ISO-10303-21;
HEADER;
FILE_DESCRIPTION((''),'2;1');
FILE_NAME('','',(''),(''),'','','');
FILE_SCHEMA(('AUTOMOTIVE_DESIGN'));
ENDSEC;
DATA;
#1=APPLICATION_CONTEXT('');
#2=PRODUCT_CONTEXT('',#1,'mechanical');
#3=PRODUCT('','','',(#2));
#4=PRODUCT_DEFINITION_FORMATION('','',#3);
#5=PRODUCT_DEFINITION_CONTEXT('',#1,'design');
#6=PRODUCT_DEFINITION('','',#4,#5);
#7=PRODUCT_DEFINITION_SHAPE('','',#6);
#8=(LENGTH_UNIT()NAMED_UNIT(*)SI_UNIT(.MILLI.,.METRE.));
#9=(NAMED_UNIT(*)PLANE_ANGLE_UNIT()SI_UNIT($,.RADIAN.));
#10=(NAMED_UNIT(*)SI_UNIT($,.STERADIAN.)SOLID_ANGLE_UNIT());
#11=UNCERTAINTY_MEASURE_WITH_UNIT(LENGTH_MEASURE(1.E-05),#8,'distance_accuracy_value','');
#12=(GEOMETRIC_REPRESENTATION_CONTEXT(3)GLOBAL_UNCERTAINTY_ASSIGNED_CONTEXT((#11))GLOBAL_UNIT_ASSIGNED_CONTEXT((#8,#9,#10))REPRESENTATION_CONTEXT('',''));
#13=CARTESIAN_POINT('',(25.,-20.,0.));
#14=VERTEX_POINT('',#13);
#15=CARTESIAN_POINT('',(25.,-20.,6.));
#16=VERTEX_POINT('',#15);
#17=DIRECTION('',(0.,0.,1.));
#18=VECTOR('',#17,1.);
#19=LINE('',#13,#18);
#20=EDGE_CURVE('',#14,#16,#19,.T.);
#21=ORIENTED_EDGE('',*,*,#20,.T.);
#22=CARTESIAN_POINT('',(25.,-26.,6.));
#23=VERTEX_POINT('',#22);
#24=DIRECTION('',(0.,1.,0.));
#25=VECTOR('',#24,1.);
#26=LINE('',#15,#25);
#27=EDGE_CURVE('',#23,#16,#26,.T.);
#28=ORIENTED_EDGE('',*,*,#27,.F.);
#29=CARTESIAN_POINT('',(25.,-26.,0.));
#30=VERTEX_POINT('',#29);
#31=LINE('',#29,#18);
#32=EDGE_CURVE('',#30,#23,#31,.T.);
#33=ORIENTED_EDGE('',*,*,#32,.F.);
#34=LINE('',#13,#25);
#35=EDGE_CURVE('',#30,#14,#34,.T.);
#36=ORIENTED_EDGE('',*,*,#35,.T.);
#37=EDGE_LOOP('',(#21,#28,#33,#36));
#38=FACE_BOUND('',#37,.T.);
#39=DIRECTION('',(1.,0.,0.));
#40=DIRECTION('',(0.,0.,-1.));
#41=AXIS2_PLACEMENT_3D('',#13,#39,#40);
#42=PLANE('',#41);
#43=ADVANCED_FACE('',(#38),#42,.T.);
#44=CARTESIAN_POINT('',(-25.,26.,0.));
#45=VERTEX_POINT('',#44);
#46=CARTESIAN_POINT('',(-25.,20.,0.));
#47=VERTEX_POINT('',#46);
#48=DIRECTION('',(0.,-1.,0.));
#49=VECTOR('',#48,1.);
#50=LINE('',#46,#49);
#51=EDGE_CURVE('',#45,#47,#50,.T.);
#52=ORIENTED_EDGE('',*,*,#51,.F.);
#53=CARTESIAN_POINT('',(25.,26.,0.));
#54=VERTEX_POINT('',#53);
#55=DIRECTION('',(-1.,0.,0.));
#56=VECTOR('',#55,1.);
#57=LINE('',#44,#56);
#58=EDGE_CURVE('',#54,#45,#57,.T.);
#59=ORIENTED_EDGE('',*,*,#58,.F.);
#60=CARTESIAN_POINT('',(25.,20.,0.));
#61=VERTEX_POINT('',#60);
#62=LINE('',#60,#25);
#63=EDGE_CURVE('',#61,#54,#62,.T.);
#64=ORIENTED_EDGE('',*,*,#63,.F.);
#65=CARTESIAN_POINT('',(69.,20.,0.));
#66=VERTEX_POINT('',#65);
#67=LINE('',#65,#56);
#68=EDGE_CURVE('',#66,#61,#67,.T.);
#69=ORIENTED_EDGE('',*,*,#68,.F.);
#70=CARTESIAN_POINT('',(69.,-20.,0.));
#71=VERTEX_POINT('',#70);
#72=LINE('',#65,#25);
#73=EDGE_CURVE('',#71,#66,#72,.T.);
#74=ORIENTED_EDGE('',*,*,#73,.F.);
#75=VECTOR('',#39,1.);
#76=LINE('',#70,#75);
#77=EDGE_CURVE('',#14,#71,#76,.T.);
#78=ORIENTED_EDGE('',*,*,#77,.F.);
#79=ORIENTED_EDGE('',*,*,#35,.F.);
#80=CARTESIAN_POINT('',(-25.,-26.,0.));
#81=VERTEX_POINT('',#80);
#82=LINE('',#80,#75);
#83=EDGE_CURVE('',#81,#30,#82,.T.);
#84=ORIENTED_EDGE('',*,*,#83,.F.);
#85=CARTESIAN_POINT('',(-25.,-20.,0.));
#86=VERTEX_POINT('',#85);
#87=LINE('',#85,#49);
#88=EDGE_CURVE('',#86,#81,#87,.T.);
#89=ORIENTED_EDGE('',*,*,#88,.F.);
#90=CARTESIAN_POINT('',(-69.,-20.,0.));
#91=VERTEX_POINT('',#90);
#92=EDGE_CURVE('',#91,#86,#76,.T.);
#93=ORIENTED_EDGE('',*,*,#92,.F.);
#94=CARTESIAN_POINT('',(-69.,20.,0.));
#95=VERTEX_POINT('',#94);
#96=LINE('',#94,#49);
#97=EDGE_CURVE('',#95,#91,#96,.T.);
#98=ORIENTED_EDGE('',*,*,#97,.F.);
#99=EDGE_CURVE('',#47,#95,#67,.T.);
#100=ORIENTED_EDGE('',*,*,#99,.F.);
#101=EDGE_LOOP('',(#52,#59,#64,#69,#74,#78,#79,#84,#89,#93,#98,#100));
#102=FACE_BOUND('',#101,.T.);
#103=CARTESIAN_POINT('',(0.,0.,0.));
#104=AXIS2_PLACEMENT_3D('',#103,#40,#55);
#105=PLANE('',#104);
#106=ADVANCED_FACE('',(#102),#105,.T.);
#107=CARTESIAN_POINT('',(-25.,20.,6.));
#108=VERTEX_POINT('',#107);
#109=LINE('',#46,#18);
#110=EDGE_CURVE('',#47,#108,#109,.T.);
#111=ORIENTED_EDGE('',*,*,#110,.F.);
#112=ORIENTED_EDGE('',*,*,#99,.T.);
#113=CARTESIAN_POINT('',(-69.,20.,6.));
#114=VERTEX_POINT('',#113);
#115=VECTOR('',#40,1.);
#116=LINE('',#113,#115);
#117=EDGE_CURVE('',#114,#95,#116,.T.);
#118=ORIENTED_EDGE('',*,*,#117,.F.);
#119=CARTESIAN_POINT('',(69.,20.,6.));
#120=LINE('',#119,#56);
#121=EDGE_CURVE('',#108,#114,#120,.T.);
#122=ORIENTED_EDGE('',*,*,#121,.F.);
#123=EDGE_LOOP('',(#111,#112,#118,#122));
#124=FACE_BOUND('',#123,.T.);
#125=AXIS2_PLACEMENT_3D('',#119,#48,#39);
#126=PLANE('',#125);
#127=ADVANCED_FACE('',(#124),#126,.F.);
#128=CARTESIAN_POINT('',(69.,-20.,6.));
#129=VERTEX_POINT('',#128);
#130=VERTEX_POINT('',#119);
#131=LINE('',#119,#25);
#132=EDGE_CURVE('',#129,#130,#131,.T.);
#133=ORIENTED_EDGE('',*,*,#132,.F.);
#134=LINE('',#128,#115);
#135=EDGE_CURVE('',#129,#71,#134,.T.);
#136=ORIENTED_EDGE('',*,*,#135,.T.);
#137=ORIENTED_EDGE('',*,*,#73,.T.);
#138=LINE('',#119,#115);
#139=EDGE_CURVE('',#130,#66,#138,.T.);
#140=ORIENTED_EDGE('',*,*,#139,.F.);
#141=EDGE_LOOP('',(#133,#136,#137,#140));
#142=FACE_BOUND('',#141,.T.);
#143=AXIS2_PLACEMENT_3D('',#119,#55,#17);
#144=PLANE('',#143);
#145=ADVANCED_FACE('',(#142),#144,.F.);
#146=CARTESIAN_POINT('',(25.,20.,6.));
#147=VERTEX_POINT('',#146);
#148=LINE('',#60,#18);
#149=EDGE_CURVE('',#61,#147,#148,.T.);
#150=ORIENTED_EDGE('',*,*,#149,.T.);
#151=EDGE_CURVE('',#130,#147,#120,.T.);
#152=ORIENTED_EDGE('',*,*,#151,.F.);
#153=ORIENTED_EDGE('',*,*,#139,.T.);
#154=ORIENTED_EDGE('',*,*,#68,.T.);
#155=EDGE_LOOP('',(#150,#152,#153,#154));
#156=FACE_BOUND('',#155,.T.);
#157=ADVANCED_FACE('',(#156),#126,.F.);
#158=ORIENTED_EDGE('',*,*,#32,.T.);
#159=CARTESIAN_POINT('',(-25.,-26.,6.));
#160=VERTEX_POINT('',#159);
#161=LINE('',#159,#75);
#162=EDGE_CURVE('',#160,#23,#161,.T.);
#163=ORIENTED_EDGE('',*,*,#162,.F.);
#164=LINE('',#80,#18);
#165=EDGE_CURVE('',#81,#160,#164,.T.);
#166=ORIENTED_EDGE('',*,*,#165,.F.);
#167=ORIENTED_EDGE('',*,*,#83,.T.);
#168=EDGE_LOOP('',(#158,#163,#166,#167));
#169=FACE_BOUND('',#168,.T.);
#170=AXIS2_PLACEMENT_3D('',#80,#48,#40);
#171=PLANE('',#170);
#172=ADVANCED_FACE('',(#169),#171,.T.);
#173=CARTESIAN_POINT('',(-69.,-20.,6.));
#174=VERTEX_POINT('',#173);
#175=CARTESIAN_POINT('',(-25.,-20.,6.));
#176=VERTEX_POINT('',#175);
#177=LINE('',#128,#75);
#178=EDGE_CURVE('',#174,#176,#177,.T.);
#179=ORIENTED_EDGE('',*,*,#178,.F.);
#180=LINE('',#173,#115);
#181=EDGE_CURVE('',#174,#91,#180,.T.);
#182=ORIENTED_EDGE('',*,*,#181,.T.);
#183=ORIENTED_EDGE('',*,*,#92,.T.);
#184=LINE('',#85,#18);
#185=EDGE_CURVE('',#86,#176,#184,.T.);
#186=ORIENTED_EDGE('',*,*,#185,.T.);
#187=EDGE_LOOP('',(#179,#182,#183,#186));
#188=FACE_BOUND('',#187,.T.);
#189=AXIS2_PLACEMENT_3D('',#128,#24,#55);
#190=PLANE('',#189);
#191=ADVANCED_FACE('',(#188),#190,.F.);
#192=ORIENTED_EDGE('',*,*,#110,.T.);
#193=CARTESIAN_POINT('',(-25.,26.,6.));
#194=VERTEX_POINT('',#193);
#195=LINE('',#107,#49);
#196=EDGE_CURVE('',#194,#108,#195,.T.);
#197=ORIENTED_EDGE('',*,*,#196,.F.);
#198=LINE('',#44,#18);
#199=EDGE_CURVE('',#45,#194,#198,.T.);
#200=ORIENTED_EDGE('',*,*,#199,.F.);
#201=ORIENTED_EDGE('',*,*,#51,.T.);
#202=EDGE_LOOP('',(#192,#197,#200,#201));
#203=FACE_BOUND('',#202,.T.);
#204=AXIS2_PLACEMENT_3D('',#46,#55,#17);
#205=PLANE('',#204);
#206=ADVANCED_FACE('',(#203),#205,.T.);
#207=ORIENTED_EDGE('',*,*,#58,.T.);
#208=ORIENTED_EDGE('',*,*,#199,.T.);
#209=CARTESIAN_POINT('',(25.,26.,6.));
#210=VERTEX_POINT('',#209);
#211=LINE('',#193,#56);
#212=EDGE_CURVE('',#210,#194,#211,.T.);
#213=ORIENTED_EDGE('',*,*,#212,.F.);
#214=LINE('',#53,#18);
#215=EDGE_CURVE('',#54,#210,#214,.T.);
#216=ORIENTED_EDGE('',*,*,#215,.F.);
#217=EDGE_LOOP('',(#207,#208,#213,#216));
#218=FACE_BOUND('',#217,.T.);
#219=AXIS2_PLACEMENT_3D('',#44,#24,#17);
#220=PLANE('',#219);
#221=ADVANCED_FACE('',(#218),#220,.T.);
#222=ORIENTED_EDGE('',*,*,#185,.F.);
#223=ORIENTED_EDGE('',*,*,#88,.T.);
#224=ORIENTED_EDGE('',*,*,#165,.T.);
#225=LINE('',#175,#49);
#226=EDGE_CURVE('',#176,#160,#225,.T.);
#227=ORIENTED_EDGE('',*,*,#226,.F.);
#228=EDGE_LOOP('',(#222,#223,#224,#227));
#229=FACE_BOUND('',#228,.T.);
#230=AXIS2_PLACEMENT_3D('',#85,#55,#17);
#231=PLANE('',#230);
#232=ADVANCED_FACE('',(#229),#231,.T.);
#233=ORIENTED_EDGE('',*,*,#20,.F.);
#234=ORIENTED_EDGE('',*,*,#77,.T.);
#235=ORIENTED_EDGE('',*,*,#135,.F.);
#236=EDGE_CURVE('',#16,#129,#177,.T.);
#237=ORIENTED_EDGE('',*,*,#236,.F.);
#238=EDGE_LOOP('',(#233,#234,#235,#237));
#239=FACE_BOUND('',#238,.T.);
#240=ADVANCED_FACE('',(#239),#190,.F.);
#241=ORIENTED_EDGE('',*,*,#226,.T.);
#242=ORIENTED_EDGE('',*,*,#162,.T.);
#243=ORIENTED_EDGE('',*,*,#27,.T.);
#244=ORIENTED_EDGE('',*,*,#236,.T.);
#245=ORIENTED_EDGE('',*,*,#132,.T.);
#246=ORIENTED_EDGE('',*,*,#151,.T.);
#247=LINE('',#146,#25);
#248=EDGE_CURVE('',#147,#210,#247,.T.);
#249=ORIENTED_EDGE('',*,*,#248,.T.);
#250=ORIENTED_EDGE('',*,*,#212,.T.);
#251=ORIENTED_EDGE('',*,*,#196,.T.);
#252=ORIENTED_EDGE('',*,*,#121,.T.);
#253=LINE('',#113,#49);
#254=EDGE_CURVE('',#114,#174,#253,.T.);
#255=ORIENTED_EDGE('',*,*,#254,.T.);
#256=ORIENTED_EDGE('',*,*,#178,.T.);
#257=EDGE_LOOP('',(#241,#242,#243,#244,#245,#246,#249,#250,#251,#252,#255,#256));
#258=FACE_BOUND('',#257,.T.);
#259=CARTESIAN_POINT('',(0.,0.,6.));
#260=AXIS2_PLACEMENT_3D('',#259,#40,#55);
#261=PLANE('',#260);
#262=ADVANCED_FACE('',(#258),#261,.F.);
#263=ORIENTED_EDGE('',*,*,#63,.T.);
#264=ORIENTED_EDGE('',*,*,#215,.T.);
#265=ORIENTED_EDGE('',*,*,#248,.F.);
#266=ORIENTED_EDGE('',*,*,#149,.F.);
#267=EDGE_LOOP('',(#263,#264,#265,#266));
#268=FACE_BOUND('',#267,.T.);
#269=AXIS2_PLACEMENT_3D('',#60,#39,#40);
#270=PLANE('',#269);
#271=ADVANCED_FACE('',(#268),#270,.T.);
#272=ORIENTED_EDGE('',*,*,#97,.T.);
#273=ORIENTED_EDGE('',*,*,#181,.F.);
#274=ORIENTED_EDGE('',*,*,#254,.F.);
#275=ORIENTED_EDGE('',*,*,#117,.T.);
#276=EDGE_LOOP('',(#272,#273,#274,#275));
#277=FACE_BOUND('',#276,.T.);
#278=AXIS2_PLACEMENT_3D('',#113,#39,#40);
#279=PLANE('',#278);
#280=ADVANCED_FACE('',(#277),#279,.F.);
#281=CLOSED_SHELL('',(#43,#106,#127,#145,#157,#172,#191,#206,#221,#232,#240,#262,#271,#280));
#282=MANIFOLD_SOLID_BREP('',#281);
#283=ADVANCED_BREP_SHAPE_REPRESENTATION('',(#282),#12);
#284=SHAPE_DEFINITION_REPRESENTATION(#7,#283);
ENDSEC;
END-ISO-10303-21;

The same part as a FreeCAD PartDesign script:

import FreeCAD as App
import Part
import Sketcher

V = App.Vector


def add_polygon(sketch, points):
    """Adds a closed chain of lines whose ends are joined by coincident constraints."""
    first, n = sketch.GeometryCount, len(points)
    for a, b in zip(points, points[1:] + points[:1]):
        sketch.addGeometry(Part.LineSegment(App.Vector(*a, 0), App.Vector(*b, 0)), False)
    for i in range(n):
        sketch.addConstraint(Sketcher.Constraint("Coincident", first + i, 2, first + (i + 1) % n, 1))

doc = App.newDocument("Part")
body = doc.addObject("PartDesign::Body", "Body")

sketch1 = body.newObject("Sketcher::SketchObject", "Sketch")
sketch1.AttachmentSupport = (doc.getObject("XY_Plane"), [""])
sketch1.MapMode = "FlatFace"
add_polygon(sketch1, [(-69, 20), (-69, -20), (69, -20), (69, 20)])
sketch1.addConstraint([
    Sketcher.Constraint("Vertical", 0),
    Sketcher.Constraint("Horizontal", 1),
    Sketcher.Constraint("Vertical", 2),
    Sketcher.Constraint("Horizontal", 3),
    Sketcher.Constraint("Symmetric", 0, 2, 2, 2, -1, 1),
    Sketcher.Constraint("DistanceX", 1, 1, 1, 2, 138.0),
    Sketcher.Constraint("DistanceY", 0, 2, 0, 1, 40.0),
])
pad1 = body.newObject("PartDesign::Pad", "Pad")
pad1.Profile = sketch1
pad1.Length = 6

sketch2 = body.newObject("Sketcher::SketchObject", "Sketch001")
sketch2.AttachmentSupport = (doc.getObject("XY_Plane"), [""])
sketch2.MapMode = "FlatFace"
sketch2.AttachmentOffset = App.Placement(V(0, 0, 6), App.Rotation())
add_polygon(sketch2, [(-25, 26), (-25, 20), (25, 20), (25, 26)])
add_polygon(sketch2, [(-25, -20), (-25, -26), (25, -26), (25, -20)])
sketch2.addConstraint([
    Sketcher.Constraint("Vertical", 0),
    Sketcher.Constraint("Horizontal", 1),
    Sketcher.Constraint("Vertical", 2),
    Sketcher.Constraint("Horizontal", 3),
    Sketcher.Constraint("Vertical", 4),
    Sketcher.Constraint("Horizontal", 5),
    Sketcher.Constraint("Vertical", 6),
    Sketcher.Constraint("Horizontal", 7),
    Sketcher.Constraint("Symmetric", 2, 2, 4, 2, -1, 1),
    Sketcher.Constraint("Symmetric", 0, 2, 6, 2, -1, 1),
    Sketcher.Constraint("Vertical", 3, 2, 4, 2),
    Sketcher.Constraint("DistanceX", 1, 1, 1, 2, 50.0),
    Sketcher.Constraint("DistanceY", 0, 2, 0, 1, 6.0),
    Sketcher.Constraint("DistanceY", -1, 1, 0, 2, 20.0),
])
pad2 = body.newObject("PartDesign::Pad", "Pad001")
pad2.Profile = sketch2
pad2.Length = 6
pad2.Reversed = True

doc.recompute()
